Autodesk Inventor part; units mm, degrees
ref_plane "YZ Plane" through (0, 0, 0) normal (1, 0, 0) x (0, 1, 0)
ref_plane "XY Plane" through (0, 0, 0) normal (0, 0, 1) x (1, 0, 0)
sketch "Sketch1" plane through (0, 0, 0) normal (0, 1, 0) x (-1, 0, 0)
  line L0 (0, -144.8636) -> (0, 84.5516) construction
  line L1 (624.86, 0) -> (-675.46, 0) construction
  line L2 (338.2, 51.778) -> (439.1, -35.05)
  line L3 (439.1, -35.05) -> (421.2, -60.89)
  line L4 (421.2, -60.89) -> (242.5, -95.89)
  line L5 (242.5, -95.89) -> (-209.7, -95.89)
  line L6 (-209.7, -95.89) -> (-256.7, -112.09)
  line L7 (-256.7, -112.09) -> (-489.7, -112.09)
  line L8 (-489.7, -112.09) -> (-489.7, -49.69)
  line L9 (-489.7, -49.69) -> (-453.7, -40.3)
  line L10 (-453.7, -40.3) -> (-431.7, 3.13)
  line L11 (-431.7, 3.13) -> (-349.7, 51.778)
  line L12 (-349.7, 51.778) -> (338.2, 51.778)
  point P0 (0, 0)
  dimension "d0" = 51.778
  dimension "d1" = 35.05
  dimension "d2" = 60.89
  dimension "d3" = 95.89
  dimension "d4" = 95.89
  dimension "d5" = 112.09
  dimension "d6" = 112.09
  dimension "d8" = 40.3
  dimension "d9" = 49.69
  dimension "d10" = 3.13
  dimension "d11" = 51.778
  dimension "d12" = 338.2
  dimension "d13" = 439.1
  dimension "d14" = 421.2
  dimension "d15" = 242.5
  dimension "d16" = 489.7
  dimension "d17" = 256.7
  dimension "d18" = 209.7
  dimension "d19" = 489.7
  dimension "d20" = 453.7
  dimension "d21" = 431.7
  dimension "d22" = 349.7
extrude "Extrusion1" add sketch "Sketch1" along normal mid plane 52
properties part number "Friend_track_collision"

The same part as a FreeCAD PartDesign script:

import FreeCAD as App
import Part
import Sketcher
from FreeCAD import Vector
Q = App.Units.Quantity


def add_polygon(sketch, points):
    """Adds a closed chain of lines whose ends are joined by coincident constraints."""
    first, n = sketch.GeometryCount, len(points)
    for a, b in zip(points, points[1:] + points[:1]):
        sketch.addGeometry(Part.LineSegment(App.Vector(*a, 0), App.Vector(*b, 0)), False)
    for i in range(n):
        sketch.addConstraint(Sketcher.Constraint("Coincident", first + i, 2, first + (i + 1) % n, 1))

doc = App.newDocument("Part")
params = doc.addObject("Spreadsheet::Sheet", "Params")
for row, (alias, value) in enumerate([
    ("pad1_length", "52 mm"),
], start=1):
    params.set(f"A{row}", alias)
    params.set(f"B{row}", "=" + value)
    params.setAlias(f"B{row}", alias)

body = doc.addObject("PartDesign::Body", "Body")

# Sketch on XZ plane
sketch1 = body.newObject("Sketcher::SketchObject", "Sketch")
sketch1.AttachmentSupport = (doc.getObject("XZ_Plane"), [""])
sketch1.MapMode = "FlatFace"
add_polygon(sketch1, [(-439, -35), (-338, 52), (350, 52), (432, 3), (454, -40), (490, -50), (490, -112), (257, -112), (210, -96), (-242, -96), (-421, -61)])  # lines 0-10
sketch1.addConstraint([
    Sketcher.Constraint("Horizontal", 1),
    Sketcher.Constraint("Vertical", 5),
    Sketcher.Constraint("Horizontal", 6),
    Sketcher.Constraint("Horizontal", 8),
    Sketcher.Constraint("DistanceX", 0, 2, -1, 1, Q("338.2 mm")),
    Sketcher.Constraint("DistanceX", -1, 1, 1, 2, Q("349.7 mm")),
    Sketcher.Constraint("DistanceX", -1, 1, 2, 2, Q("431.7 mm")),
    Sketcher.Constraint("DistanceX", -1, 1, 3, 2, Q("453.7 mm")),
    Sketcher.Constraint("DistanceY", 3, 2, -1, 1, Q("40.3 mm")),
    Sketcher.Constraint("DistanceX", -1, 1, 4, 2, Q("489.7 mm")),
    Sketcher.Constraint("DistanceX", -1, 1, 6, 2, Q("256.7 mm")),
    Sketcher.Constraint("DistanceX", -1, 1, 7, 2, Q("209.7 mm")),
    Sketcher.Constraint("DistanceX", 8, 2, -1, 1, Q("242.5 mm")),
    Sketcher.Constraint("DistanceX", 9, 2, -1, 1, Q("421.2 mm")),
    Sketcher.Constraint("DistanceX", 10, 2, -1, 1, Q("439.1 mm")),
    Sketcher.Constraint("DistanceY", -1, 1, 2, 2, Q("3.13 mm")),
    Sketcher.Constraint("DistanceY", 4, 2, -1, 1, Q("49.69 mm")),
    Sketcher.Constraint("DistanceY", 5, 2, -1, 1, Q("112.09 mm")),
    Sketcher.Constraint("DistanceY", 7, 2, -1, 1, Q("95.89 mm")),
    Sketcher.Constraint("DistanceY", 9, 2, -1, 1, Q("60.89 mm")),
    Sketcher.Constraint("DistanceY", 10, 2, -1, 1, Q("35.05 mm")),
    Sketcher.Constraint("DistanceY", -1, 1, 0, 2, Q("51.778 mm")),
])
pad1 = body.newObject("PartDesign::Pad", "Pad")
pad1.Profile = sketch1
pad1.setExpression("Length", "Params.pad1_length")
pad1.Midplane = True

doc.recompute()
